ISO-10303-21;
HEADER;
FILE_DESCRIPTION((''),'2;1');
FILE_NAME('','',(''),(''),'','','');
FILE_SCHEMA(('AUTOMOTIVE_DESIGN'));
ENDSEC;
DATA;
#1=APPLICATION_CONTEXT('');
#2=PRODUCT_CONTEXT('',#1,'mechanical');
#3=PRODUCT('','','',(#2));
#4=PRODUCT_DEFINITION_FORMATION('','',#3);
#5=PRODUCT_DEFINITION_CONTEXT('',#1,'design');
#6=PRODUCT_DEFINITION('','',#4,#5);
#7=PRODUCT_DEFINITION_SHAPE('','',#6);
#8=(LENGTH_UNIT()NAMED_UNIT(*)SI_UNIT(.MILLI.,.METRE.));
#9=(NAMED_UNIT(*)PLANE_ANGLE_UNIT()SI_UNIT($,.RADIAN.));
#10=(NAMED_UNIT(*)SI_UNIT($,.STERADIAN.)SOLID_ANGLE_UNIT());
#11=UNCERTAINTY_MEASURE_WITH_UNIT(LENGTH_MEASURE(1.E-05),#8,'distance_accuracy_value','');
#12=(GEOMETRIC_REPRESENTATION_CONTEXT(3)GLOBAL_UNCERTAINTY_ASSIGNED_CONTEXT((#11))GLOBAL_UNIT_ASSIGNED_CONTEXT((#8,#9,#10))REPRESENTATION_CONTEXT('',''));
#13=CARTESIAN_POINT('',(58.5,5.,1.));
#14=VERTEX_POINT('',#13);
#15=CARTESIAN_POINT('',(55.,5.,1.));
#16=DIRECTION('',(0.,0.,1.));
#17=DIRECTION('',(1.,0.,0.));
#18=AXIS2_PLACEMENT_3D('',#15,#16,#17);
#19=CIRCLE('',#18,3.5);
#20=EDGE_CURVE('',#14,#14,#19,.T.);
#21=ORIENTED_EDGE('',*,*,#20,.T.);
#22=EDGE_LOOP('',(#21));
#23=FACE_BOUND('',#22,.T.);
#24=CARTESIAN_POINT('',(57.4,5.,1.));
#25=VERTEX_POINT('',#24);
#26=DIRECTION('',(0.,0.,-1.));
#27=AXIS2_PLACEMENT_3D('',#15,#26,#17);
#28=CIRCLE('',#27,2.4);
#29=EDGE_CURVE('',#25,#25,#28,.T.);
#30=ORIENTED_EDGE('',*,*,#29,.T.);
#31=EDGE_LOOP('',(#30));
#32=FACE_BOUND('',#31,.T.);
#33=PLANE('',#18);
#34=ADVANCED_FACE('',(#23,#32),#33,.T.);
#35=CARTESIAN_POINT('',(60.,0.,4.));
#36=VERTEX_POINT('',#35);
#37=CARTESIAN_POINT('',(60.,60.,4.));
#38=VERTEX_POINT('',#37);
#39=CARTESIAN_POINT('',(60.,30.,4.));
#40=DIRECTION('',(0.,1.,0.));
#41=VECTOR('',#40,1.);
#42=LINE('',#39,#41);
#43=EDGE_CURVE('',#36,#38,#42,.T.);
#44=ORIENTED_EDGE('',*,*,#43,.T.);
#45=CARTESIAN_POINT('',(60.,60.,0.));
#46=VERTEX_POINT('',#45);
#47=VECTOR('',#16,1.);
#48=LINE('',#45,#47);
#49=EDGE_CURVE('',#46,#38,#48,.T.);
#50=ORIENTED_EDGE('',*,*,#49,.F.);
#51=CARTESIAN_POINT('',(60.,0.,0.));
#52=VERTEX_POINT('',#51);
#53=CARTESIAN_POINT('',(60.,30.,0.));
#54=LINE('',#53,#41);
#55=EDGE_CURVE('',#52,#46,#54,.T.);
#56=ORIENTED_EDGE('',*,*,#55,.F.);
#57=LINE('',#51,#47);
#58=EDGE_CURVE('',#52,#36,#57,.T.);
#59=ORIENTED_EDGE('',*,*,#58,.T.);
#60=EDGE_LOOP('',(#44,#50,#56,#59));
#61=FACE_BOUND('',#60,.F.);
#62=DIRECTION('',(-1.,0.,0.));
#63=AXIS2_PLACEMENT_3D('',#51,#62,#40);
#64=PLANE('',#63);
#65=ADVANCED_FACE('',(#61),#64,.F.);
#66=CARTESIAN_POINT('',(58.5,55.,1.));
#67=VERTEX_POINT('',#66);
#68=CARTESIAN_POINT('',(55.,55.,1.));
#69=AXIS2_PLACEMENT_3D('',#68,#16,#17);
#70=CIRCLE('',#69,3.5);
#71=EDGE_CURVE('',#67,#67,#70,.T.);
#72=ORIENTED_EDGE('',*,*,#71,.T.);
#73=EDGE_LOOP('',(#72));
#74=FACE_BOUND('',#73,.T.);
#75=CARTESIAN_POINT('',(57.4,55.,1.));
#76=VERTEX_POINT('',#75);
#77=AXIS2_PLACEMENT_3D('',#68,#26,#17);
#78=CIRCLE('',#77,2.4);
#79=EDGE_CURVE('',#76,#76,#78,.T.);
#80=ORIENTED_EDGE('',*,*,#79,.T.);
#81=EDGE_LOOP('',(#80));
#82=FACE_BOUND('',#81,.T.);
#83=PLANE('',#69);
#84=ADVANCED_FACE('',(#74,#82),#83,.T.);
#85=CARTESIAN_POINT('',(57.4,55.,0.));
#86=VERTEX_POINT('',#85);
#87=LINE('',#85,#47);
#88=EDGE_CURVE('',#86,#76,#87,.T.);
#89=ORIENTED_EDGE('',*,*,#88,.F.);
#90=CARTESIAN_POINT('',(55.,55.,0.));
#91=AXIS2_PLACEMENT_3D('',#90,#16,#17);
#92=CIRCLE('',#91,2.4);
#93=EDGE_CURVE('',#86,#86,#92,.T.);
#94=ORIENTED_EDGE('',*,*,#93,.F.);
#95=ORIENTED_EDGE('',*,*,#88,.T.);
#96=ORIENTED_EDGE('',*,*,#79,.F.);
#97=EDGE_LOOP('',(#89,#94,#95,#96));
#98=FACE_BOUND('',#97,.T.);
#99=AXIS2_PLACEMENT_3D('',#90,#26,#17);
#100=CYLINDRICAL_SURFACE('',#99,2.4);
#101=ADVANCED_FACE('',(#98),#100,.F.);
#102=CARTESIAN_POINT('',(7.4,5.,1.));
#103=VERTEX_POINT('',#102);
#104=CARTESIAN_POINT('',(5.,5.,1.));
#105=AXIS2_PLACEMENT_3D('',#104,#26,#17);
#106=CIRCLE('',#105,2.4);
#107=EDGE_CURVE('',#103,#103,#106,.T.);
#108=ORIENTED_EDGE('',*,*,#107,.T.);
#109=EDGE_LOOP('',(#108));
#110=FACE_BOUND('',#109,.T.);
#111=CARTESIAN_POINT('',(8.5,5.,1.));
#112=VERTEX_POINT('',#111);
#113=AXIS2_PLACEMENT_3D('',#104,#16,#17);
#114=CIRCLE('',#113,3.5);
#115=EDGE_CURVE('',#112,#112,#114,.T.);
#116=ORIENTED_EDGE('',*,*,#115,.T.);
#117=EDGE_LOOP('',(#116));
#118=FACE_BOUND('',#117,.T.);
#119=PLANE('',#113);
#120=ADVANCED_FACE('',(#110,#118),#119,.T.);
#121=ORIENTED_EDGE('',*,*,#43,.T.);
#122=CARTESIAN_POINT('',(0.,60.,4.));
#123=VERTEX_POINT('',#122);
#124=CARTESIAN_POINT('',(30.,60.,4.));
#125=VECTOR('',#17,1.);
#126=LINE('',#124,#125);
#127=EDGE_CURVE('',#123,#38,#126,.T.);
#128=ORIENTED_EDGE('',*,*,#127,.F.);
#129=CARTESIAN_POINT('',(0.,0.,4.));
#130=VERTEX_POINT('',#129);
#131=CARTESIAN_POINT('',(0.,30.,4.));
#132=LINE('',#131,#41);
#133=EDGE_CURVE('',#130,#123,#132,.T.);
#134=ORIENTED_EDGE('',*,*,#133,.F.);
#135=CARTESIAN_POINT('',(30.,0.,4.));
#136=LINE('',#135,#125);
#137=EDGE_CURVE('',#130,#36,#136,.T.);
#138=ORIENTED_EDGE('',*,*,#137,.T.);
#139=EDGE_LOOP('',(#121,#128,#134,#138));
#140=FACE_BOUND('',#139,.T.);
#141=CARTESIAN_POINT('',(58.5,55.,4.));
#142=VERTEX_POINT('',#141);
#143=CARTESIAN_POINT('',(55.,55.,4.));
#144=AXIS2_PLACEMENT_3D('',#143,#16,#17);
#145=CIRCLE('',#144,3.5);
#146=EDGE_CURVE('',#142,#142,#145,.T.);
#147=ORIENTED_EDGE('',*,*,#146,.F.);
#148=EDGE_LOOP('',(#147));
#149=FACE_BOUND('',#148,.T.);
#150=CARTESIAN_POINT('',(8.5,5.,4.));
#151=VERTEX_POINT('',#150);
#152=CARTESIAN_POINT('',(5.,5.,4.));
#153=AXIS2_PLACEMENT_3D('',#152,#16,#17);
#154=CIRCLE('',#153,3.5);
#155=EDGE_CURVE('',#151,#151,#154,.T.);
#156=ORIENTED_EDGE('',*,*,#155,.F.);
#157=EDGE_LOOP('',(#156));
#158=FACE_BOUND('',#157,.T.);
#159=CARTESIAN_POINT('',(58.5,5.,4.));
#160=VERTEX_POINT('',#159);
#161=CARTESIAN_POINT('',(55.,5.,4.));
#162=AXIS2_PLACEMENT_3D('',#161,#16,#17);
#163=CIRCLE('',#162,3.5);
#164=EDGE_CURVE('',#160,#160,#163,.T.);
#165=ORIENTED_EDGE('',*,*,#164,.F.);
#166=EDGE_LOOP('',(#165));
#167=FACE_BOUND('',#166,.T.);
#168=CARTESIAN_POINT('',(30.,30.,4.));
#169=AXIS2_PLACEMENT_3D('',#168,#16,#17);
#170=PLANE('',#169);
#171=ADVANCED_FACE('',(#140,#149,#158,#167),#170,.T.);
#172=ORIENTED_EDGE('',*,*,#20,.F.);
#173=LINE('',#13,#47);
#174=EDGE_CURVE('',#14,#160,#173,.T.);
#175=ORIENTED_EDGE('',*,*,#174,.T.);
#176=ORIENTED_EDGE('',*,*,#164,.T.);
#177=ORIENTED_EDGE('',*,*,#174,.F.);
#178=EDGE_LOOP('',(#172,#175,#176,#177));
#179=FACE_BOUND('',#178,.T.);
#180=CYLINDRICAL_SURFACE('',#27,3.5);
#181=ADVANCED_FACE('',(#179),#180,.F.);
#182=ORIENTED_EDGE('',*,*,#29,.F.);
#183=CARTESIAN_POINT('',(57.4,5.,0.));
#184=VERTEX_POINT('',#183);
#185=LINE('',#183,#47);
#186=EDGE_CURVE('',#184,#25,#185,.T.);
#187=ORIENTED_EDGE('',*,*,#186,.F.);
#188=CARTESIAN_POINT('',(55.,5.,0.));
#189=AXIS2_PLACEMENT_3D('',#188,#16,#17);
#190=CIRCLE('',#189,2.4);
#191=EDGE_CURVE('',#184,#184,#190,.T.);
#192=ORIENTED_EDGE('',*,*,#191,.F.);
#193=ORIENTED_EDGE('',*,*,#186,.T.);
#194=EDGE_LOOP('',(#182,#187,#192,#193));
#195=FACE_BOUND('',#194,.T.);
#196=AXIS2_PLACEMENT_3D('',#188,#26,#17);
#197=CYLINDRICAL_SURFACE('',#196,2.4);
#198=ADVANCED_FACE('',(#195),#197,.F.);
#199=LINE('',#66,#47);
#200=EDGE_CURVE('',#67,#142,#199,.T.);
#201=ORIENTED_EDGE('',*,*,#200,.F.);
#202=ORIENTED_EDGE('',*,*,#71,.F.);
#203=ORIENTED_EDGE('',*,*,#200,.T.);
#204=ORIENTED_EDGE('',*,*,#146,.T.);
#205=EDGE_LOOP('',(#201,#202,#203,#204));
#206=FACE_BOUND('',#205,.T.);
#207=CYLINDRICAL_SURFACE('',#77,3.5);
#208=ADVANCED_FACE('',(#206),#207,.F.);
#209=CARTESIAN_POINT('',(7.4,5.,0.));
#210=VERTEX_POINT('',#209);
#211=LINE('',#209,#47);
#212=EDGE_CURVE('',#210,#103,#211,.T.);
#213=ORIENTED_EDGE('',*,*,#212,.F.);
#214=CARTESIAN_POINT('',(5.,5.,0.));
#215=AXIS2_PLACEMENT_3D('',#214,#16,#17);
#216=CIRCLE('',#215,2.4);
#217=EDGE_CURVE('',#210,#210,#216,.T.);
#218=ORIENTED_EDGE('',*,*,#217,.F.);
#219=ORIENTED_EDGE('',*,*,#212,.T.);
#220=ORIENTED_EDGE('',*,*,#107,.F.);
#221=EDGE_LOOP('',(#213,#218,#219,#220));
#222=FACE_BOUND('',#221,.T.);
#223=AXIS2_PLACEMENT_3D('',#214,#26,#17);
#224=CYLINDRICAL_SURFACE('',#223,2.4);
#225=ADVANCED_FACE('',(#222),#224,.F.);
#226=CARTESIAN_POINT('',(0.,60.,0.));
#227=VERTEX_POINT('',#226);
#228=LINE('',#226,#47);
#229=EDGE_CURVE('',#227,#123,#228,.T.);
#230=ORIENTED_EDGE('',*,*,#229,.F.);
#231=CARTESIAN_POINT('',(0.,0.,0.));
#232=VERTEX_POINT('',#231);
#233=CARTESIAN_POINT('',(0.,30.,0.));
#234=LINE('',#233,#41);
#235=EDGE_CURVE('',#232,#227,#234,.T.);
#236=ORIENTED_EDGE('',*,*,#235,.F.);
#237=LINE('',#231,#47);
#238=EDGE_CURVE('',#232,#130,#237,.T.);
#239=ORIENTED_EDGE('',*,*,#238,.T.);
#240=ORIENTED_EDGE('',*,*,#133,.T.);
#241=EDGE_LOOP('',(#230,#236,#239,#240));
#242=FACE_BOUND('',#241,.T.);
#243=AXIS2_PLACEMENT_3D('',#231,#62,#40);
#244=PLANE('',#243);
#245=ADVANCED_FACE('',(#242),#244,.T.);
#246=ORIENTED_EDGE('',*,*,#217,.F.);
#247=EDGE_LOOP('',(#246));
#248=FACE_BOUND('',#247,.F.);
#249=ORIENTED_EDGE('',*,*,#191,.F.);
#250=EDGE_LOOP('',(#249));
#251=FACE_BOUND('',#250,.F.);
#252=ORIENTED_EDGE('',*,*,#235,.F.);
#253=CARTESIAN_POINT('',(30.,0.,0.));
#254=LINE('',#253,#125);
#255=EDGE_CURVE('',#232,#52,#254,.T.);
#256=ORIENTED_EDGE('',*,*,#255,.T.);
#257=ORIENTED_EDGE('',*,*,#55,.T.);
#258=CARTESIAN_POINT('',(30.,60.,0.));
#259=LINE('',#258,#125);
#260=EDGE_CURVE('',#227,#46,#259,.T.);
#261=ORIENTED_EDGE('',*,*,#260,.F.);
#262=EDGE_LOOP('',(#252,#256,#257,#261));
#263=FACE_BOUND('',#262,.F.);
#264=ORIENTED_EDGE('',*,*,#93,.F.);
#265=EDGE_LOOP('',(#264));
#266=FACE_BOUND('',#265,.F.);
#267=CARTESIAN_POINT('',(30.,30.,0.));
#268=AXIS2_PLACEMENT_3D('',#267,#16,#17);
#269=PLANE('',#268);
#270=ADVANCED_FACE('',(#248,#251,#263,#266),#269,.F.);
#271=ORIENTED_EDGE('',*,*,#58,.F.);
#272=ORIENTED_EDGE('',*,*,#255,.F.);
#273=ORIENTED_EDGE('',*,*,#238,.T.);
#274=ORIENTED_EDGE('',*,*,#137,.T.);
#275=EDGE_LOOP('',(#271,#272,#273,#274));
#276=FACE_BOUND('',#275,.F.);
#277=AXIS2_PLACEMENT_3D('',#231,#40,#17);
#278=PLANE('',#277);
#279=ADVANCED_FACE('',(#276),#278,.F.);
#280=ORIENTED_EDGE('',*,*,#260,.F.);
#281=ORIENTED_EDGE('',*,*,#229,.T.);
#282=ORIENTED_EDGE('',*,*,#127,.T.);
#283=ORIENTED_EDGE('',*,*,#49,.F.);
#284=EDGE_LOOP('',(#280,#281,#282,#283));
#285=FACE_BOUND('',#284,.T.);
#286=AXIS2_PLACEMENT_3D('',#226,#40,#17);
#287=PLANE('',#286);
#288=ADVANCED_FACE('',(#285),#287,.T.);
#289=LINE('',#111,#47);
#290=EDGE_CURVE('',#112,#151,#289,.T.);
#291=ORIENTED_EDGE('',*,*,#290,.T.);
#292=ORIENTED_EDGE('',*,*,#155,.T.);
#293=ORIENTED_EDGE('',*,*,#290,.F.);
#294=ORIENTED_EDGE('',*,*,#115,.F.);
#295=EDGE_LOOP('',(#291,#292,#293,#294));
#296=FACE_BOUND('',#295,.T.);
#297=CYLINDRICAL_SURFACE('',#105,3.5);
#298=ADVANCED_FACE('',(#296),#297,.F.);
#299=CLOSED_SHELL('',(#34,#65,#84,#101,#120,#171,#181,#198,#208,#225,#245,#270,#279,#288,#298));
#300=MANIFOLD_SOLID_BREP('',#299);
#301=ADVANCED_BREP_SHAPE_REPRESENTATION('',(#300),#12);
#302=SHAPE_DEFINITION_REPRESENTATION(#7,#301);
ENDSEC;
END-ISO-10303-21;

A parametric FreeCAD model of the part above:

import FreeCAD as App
import Part
import Sketcher

V = App.Vector

doc = App.newDocument("Part")
params = doc.addObject("Spreadsheet::Sheet", "Params")
for row, (alias, value) in enumerate([
    ("sketch1_diameter", "7 mm"),
    ("pad1_length", "3 mm"),
    ("sketch2_diameter", "4.8 mm"),
    ("pad2_length", "10 mm"),
    ("sketch3_diameter", "7 mm"),
    ("pad3_length", "3 mm"),
    ("sketch4_diameter", "4.8 mm"),
    ("pad4_length", "10 mm"),
    ("sketch5_diameter", "7 mm"),
    ("pad5_length", "3 mm"),
    ("sketch6_diameter", "4.8 mm"),
    ("pad6_length", "10 mm"),
    ("sketch7_width", "60 mm"),
    ("pad7_length", "4 mm"),
], start=1):
    params.set(f"A{row}", alias)
    params.set(f"B{row}", "=" + value)
    params.setAlias(f"B{row}", alias)

body = doc.addObject("PartDesign::Body", "Body")

sketch1 = body.newObject("Sketcher::SketchObject", "Sketch")
sketch1.AttachmentSupport = (doc.getObject("XY_Plane"), [""])
sketch1.MapMode = "FlatFace"
sketch1.AttachmentOffset = App.Placement(V(0, 0, 1), App.Rotation())
sketch1.addGeometry(Part.Circle(V(0, 0, 0), V(0, 0, 1), 3.5), False)
sketch1.addConstraint([
    Sketcher.Constraint("Coincident", 0, 3, -1, 1),
    Sketcher.Constraint("Diameter", 0, 7.0),
])
sketch1.setExpression("Constraints[1]", "Params.sketch1_diameter")
pad1 = body.newObject("PartDesign::Pad", "Pad")
pad1.Profile = sketch1
pad1.setExpression("Length", "Params.pad1_length")
body2 = doc.addObject("PartDesign::Body", "Body001")

sketch2 = body2.newObject("Sketcher::SketchObject", "Sketch001")
sketch2.AttachmentSupport = (doc.getObject("XY_Plane001"), [""])
sketch2.MapMode = "FlatFace"
sketch2.addGeometry(Part.Circle(V(0, 0, 0), V(0, 0, 1), 2.4), False)
sketch2.addConstraint([
    Sketcher.Constraint("Coincident", 0, 3, -1, 1),
    Sketcher.Constraint("Diameter", 0, 4.8),
])
sketch2.setExpression("Constraints[1]", "Params.sketch2_diameter")
pad2 = body2.newObject("PartDesign::Pad", "Pad001")
pad2.Profile = sketch2
pad2.setExpression("Length", "Params.pad2_length")
doc.recompute()

boolean = body2.newObject("PartDesign::Boolean", "Boolean")
boolean.Type = "Fuse"
boolean.addObjects([body])
body3 = doc.addObject("PartDesign::Body", "Body002")
doc.recompute()

body2.Placement = App.Placement(V(5, 5, 0), App.Rotation(V(0, 0, 1), 0))
boolean2 = body3.newObject("PartDesign::Boolean", "Boolean001")
boolean2.Type = "Fuse"
boolean2.addObjects([body2])
body4 = doc.addObject("PartDesign::Body", "Body003")

sketch3 = body4.newObject("Sketcher::SketchObject", "Sketch002")
sketch3.AttachmentSupport = (doc.getObject("XY_Plane003"), [""])
sketch3.MapMode = "FlatFace"
sketch3.AttachmentOffset = App.Placement(V(0, 0, 1), App.Rotation())
sketch3.addGeometry(Part.Circle(V(0, 0, 0), V(0, 0, 1), 3.5), False)
sketch3.addConstraint([
    Sketcher.Constraint("Coincident", 0, 3, -1, 1),
    Sketcher.Constraint("Diameter", 0, 7.0),
])
sketch3.setExpression("Constraints[1]", "Params.sketch3_diameter")
pad3 = body4.newObject("PartDesign::Pad", "Pad002")
pad3.Profile = sketch3
pad3.setExpression("Length", "Params.pad3_length")
body5 = doc.addObject("PartDesign::Body", "Body004")

sketch4 = body5.newObject("Sketcher::SketchObject", "Sketch003")
sketch4.AttachmentSupport = (doc.getObject("XY_Plane004"), [""])
sketch4.MapMode = "FlatFace"
sketch4.addGeometry(Part.Circle(V(0, 0, 0), V(0, 0, 1), 2.4), False)
sketch4.addConstraint([
    Sketcher.Constraint("Coincident", 0, 3, -1, 1),
    Sketcher.Constraint("Diameter", 0, 4.8),
])
sketch4.setExpression("Constraints[1]", "Params.sketch4_diameter")
pad4 = body5.newObject("PartDesign::Pad", "Pad003")
pad4.Profile = sketch4
pad4.setExpression("Length", "Params.pad4_length")
doc.recompute()

boolean3 = body5.newObject("PartDesign::Boolean", "Boolean002")
boolean3.Type = "Fuse"
boolean3.addObjects([body4])
body6 = doc.addObject("PartDesign::Body", "Body005")
doc.recompute()

body5.Placement = App.Placement(V(55, 5, 0), App.Rotation(V(0, 0, 1), 0))
boolean4 = body6.newObject("PartDesign::Boolean", "Boolean003")
boolean4.Type = "Fuse"
boolean4.addObjects([body5])
body7 = doc.addObject("PartDesign::Body", "Body006")

sketch5 = body7.newObject("Sketcher::SketchObject", "Sketch004")
sketch5.AttachmentSupport = (doc.getObject("XY_Plane006"), [""])
sketch5.MapMode = "FlatFace"
sketch5.AttachmentOffset = App.Placement(V(0, 0, 1), App.Rotation())
sketch5.addGeometry(Part.Circle(V(0, 0, 0), V(0, 0, 1), 3.5), False)
sketch5.addConstraint([
    Sketcher.Constraint("Coincident", 0, 3, -1, 1),
    Sketcher.Constraint("Diameter", 0, 7.0),
])
sketch5.setExpression("Constraints[1]", "Params.sketch5_diameter")
pad5 = body7.newObject("PartDesign::Pad", "Pad004")
pad5.Profile = sketch5
pad5.setExpression("Length", "Params.pad5_length")
body8 = doc.addObject("PartDesign::Body", "Body007")

sketch6 = body8.newObject("Sketcher::SketchObject", "Sketch005")
sketch6.AttachmentSupport = (doc.getObject("XY_Plane007"), [""])
sketch6.MapMode = "FlatFace"
sketch6.addGeometry(Part.Circle(V(0, 0, 0), V(0, 0, 1), 2.4), False)
sketch6.addConstraint([
    Sketcher.Constraint("Coincident", 0, 3, -1, 1),
    Sketcher.Constraint("Diameter", 0, 4.8),
])
sketch6.setExpression("Constraints[1]", "Params.sketch6_diameter")
pad6 = body8.newObject("PartDesign::Pad", "Pad005")
pad6.Profile = sketch6
pad6.setExpression("Length", "Params.pad6_length")
doc.recompute()

boolean5 = body8.newObject("PartDesign::Boolean", "Boolean004")
boolean5.Type = "Fuse"
boolean5.addObjects([body7])
body9 = doc.addObject("PartDesign::Body", "Body008")
body9.AllowCompound = True
doc.recompute()

body8.Placement = App.Placement(V(55, 55, 0), App.Rotation(V(0, 0, 1), 0))
boolean6 = body9.newObject("PartDesign::Boolean", "Boolean005")
boolean6.Type = "Fuse"
boolean6.addObjects([body8])
doc.recompute()

boolean7 = body9.newObject("PartDesign::Boolean", "Boolean006")
boolean7.Type = "Fuse"
boolean7.addObjects([body3])
doc.recompute()

boolean8 = body9.newObject("PartDesign::Boolean", "Boolean007")
boolean8.Type = "Fuse"
boolean8.addObjects([body6])
body10 = doc.addObject("PartDesign::Body", "Body009")

sketch7 = body10.newObject("Sketcher::SketchObject", "Sketch006")
sketch7.AttachmentSupport = (doc.getObject("XY_Plane009"), [""])
sketch7.MapMode = "FlatFace"
sketch7.addGeometry([
    Part.LineSegment(V(0, 60, 0), V(0, 0, 0)),
    Part.LineSegment(V(0, 0, 0), V(60, 0, 0)),
    Part.LineSegment(V(60, 0, 0), V(60, 60, 0)),
    Part.LineSegment(V(60, 60, 0), V(0, 60, 0)),
], False)
sketch7.addConstraint([
    Sketcher.Constraint("Coincident", 0, 2, 1, 1),
    Sketcher.Constraint("Coincident", 1, 2, 2, 1),
    Sketcher.Constraint("Coincident", 2, 2, 3, 1),
    Sketcher.Constraint("Coincident", 3, 2, 0, 1),
    Sketcher.Constraint("Vertical", 0),
    Sketcher.Constraint("Horizontal", 1),
    Sketcher.Constraint("Vertical", 2),
    Sketcher.Constraint("Horizontal", 3),
    Sketcher.Constraint("Coincident", 0, 2, -1, 1),
    Sketcher.Constraint("Equal", 3, 0),
    Sketcher.Constraint("DistanceX", 1, 1, 1, 2, 60.0),
])
sketch7.setExpression("Constraints[10]", "Params.sketch7_width")
pad7 = body10.newObject("PartDesign::Pad", "Pad006")
pad7.Profile = sketch7
pad7.setExpression("Length", "Params.pad7_length")
doc.recompute()

boolean9 = body10.newObject("PartDesign::Boolean", "Boolean008")
boolean9.Type = "Cut"
boolean9.addObjects([body9])

doc.recompute()
